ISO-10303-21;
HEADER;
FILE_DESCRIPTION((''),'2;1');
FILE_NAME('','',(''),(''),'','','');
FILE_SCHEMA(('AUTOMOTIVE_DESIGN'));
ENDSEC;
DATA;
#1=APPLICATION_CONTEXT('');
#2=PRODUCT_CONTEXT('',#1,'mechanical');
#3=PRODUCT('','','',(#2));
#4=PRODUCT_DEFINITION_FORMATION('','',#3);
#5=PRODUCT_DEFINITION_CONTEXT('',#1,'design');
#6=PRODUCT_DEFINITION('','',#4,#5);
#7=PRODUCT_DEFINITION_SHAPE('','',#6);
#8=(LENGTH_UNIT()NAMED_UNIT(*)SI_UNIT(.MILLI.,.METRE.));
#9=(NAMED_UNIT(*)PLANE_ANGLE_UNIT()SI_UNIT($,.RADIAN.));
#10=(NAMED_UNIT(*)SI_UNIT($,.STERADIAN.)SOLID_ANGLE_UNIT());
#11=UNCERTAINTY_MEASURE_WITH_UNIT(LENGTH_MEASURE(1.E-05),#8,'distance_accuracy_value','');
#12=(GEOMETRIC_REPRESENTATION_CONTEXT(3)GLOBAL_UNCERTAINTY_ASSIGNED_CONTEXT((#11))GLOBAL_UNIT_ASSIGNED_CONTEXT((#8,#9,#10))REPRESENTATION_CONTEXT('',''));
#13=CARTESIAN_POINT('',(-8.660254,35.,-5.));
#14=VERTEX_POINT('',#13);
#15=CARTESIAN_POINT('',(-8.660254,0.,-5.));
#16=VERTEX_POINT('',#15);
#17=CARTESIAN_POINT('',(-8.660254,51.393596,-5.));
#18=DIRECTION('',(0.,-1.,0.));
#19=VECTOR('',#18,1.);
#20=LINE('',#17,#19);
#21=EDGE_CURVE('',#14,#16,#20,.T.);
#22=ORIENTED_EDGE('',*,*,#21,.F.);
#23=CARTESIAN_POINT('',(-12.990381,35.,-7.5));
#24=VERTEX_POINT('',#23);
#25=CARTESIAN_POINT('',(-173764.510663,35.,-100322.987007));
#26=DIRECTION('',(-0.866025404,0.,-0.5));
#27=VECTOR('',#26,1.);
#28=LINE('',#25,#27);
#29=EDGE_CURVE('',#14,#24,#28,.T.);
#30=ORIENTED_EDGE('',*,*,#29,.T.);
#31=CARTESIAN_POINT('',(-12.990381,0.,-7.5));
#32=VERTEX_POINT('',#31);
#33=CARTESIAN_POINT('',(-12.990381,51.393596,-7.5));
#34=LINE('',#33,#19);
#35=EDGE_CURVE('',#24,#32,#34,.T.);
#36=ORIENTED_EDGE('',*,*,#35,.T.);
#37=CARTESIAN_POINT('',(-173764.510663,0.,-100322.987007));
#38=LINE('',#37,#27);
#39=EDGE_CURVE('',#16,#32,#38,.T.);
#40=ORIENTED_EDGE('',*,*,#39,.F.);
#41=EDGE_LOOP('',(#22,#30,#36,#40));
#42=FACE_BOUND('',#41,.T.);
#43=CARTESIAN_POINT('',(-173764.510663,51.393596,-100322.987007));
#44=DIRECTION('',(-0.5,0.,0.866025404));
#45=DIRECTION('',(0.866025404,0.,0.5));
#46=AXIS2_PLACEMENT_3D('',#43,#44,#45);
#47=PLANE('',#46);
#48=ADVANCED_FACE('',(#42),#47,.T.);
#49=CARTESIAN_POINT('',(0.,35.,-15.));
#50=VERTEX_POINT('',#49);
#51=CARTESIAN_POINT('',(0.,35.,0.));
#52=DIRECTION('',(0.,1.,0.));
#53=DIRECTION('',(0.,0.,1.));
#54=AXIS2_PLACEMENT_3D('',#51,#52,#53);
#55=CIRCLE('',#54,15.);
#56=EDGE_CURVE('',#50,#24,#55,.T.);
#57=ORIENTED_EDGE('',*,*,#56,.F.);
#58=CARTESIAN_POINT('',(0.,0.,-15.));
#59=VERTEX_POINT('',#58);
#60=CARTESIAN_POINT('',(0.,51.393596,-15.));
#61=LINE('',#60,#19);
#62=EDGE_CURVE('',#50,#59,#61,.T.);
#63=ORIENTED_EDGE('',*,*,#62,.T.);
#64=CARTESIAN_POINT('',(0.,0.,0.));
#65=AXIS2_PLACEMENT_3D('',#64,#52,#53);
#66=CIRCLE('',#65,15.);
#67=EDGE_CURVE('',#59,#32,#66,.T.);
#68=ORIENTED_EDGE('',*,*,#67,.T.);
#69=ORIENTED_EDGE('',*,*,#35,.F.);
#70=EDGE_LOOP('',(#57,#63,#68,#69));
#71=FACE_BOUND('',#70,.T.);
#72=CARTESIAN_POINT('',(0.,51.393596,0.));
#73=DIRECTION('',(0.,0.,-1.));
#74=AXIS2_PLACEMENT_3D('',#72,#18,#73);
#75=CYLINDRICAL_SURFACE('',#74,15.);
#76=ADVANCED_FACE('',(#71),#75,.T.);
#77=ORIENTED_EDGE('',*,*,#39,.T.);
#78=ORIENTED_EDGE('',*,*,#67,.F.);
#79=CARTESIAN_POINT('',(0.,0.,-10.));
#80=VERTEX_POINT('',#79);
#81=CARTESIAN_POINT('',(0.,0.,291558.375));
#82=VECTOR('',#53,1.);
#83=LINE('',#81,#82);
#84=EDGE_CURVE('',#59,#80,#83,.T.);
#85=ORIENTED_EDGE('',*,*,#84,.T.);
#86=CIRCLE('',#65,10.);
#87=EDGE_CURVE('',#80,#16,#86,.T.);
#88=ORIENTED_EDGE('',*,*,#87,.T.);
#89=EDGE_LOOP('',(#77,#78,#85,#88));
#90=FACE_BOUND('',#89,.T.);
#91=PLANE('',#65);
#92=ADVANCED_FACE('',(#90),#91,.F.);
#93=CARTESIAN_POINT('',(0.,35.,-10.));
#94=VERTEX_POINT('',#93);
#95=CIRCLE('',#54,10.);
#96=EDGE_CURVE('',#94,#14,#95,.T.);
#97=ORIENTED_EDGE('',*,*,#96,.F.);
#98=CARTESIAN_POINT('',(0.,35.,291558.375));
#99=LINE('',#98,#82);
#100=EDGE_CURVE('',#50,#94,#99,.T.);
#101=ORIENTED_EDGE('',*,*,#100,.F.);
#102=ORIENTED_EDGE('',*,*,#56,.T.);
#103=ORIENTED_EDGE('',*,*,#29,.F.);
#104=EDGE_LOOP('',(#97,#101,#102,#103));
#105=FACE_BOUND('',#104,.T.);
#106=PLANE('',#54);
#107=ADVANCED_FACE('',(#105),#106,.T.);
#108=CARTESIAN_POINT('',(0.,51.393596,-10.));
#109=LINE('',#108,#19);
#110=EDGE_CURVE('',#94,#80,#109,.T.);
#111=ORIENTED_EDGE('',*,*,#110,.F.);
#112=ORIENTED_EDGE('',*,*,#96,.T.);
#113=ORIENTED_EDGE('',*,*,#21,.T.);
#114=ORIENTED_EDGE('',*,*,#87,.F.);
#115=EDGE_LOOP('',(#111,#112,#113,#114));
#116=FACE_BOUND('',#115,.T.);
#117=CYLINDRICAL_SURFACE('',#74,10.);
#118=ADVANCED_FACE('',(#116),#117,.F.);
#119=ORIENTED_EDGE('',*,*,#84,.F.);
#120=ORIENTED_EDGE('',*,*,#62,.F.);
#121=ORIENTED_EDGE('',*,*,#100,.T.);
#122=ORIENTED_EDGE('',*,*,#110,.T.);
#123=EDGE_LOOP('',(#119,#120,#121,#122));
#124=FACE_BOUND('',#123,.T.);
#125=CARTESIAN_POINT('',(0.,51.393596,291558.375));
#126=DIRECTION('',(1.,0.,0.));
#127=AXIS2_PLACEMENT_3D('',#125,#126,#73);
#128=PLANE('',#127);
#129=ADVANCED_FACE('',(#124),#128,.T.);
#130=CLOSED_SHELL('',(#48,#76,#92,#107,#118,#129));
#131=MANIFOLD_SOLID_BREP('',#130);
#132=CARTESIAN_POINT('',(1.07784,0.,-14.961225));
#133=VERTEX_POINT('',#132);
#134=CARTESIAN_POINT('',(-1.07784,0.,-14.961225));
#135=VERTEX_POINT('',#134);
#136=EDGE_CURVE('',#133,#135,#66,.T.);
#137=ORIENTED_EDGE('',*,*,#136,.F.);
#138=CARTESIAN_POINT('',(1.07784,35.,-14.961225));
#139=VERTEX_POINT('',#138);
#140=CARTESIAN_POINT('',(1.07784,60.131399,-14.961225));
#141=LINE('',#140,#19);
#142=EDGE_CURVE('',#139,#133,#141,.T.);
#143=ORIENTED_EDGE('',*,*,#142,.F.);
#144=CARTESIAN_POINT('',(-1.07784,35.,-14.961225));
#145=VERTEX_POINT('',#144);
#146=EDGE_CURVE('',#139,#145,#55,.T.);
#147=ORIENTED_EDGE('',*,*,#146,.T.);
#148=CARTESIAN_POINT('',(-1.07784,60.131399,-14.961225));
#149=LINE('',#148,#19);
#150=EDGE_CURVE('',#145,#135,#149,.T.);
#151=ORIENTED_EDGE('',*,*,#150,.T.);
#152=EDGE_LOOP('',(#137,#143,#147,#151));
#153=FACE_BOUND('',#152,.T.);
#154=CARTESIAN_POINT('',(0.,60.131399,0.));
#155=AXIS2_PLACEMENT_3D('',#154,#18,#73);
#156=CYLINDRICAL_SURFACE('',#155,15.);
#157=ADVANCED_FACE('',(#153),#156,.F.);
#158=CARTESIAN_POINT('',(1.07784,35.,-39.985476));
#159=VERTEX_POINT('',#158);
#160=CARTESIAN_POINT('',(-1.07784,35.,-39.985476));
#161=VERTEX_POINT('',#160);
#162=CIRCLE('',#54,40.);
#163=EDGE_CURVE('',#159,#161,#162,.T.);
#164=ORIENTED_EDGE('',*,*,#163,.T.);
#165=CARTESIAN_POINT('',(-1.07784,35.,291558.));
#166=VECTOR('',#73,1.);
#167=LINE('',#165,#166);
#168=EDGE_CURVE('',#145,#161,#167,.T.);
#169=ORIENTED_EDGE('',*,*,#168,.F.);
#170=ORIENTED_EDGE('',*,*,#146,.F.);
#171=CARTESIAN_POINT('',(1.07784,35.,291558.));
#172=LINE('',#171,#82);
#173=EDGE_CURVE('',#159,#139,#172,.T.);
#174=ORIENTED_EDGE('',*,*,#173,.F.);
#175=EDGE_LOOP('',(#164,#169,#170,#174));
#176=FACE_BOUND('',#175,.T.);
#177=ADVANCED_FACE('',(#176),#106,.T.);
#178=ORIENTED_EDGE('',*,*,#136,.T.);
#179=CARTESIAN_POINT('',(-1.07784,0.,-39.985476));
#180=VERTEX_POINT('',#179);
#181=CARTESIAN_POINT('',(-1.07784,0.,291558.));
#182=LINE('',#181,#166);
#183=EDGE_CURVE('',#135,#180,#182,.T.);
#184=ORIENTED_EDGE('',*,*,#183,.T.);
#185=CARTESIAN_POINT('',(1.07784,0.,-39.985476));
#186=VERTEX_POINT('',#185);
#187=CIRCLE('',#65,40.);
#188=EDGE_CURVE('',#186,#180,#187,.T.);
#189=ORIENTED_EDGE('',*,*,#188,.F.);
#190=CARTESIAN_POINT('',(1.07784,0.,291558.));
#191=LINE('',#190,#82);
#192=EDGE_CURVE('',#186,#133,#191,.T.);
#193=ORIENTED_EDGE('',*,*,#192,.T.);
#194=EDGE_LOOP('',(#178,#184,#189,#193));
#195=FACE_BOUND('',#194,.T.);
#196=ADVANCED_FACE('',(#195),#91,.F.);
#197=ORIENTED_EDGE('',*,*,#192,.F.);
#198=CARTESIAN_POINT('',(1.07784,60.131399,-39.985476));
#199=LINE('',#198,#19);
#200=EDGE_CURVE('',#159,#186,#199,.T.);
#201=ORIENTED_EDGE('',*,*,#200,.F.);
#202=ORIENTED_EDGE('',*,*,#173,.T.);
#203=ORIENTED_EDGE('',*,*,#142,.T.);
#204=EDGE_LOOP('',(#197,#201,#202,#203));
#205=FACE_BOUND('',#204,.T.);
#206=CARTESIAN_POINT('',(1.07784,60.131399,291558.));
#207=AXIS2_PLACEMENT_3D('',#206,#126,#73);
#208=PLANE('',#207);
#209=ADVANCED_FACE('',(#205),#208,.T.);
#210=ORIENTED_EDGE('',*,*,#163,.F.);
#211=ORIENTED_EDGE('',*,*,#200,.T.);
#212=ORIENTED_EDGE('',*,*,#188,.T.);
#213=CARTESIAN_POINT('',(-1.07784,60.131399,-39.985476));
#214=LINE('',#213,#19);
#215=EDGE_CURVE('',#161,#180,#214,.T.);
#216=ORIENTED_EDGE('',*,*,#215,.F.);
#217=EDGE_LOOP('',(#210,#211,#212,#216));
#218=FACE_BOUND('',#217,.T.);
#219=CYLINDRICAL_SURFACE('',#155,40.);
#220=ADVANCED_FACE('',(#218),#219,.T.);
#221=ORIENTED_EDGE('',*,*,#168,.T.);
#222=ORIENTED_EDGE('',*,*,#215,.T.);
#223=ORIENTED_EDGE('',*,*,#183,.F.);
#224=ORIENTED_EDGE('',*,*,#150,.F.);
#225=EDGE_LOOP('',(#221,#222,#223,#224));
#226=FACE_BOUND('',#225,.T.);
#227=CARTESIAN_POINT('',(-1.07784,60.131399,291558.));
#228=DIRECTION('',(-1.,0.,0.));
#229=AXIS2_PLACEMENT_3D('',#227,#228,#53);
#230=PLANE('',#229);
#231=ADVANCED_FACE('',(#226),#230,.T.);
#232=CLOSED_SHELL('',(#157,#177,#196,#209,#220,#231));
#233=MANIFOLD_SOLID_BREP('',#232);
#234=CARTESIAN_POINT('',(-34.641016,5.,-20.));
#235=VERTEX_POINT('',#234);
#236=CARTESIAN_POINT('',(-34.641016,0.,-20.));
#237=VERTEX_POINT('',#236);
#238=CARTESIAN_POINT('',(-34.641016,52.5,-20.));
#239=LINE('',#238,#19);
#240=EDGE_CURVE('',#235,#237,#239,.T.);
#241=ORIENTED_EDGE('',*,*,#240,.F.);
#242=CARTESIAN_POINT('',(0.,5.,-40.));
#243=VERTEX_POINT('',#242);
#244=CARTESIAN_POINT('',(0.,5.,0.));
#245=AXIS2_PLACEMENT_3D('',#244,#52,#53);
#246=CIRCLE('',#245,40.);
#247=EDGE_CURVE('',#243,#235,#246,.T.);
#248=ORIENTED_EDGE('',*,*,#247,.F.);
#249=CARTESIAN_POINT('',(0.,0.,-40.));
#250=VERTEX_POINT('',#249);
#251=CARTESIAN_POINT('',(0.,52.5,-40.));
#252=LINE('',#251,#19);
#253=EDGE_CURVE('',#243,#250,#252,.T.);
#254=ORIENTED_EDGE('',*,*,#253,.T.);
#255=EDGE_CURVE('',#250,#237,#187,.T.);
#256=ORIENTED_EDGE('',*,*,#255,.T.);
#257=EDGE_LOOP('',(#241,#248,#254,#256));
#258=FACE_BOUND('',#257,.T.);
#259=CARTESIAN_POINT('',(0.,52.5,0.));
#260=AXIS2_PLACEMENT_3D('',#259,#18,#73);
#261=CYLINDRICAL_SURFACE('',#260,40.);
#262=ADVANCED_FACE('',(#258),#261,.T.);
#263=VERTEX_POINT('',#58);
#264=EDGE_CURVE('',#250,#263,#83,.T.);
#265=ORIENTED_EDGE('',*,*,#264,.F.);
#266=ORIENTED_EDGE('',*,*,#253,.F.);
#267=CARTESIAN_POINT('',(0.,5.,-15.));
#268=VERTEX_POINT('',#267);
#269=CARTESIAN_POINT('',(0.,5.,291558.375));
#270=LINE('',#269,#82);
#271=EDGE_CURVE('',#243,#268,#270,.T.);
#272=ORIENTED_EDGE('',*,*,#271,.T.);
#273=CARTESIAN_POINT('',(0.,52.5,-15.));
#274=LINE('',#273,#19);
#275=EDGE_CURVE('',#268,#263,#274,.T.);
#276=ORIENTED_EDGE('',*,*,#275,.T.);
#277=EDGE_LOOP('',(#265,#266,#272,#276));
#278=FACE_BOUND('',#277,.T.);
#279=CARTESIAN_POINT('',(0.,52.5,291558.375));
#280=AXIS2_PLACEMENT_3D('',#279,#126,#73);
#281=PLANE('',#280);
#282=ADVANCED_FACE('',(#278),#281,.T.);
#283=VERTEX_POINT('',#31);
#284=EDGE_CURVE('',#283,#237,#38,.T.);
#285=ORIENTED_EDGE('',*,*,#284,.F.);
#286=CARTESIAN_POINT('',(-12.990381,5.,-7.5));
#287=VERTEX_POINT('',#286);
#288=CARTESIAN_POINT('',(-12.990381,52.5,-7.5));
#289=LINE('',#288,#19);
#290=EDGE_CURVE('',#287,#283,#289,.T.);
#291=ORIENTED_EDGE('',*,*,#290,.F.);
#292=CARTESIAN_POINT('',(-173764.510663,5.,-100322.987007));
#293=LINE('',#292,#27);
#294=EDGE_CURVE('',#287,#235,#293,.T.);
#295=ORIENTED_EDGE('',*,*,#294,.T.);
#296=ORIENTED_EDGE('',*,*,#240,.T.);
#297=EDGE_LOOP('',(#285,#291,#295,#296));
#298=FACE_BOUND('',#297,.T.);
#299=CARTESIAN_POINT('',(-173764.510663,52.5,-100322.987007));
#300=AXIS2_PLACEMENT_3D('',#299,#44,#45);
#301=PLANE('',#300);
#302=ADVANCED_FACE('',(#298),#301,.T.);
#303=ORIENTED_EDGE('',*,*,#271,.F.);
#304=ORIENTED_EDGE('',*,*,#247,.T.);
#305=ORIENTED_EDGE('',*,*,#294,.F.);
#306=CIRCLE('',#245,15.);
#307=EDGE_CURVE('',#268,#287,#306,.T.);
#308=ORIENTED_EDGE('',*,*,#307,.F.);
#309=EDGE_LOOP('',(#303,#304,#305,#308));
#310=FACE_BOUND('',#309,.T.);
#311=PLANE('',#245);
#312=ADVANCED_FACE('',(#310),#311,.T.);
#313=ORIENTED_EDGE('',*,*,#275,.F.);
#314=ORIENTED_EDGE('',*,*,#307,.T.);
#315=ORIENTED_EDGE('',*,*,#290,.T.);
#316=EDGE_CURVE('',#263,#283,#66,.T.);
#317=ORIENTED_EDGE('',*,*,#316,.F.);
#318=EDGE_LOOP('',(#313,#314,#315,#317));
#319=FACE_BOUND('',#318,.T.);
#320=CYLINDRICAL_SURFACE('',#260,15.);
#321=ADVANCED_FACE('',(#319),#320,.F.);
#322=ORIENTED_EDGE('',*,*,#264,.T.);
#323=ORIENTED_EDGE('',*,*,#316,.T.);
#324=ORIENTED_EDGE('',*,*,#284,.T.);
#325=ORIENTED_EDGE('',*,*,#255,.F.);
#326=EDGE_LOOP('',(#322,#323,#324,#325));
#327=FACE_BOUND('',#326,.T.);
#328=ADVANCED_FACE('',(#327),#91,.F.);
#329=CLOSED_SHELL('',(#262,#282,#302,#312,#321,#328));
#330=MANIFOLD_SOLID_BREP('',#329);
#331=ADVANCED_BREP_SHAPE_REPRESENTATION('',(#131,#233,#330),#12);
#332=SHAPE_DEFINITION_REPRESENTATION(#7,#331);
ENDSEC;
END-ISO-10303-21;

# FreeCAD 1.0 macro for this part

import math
import FreeCAD as App
import Part
import Sketcher
from FreeCAD import Vector
Q = App.Units.Quantity

doc = App.newDocument("Part")
body = doc.addObject("PartDesign::Body", "Body")

sketch1 = body.newObject("Sketcher::SketchObject", "Sketch")
sketch1.AttachmentSupport = (doc.getObject("XZ_Plane"), [""])
sketch1.MapMode = "FlatFace"
sketch1.addGeometry(Part.LineSegment(Vector(0, -15, 0), Vector(0, -40, 0)), False)
sketch1.addGeometry(Part.ArcOfCircle(Part.Circle(Vector(0, 0, 0), Vector(0, 0, 1), 40), math.radians(-150), math.radians(-90)), False)
sketch1.addGeometry(Part.LineSegment(Vector(-35, -20, 0), Vector(-13, -8, 0)), False)
sketch1.addGeometry(Part.ArcOfCircle(Part.Circle(Vector(0, 0, 0), Vector(0, 0, 1), 15), math.radians(-150), math.radians(-90)), False)
sketch1.addConstraint(Sketcher.Constraint("Coincident", 0, 2, 1, 2))
sketch1.addConstraint(Sketcher.Constraint("Coincident", 1, 1, 2, 1))
sketch1.addConstraint(Sketcher.Constraint("Coincident", 2, 2, 3, 1))
sketch1.addConstraint(Sketcher.Constraint("Coincident", 3, 2, 0, 1))
sketch1.addConstraint(Sketcher.Constraint("Vertical", 0))
sketch1.addConstraint(Sketcher.Constraint("Coincident", 1, 3, -1, 1))
sketch1.addConstraint(Sketcher.Constraint("Coincident", 3, 3, -1, 1))
sketch1.addConstraint(Sketcher.Constraint("PointOnObject", 0, 2, -2))
sketch1.addConstraint(Sketcher.Constraint("Radius", 1, 40.0))
sketch1.addConstraint(Sketcher.Constraint("Radius", 3, 15.0))
sketch1.addConstraint(Sketcher.Constraint("Angle", 2, Q("30 deg")))
sketch1.addConstraint(Sketcher.Constraint("DistanceY", 1, 1, -1, 1, 20.0))
pad1 = body.newObject("PartDesign::Pad", "Pad")
pad1.Profile = sketch1
pad1.Length = 5
pad1.Reversed = True
body2 = doc.addObject("PartDesign::Body", "Body001")

sketch2 = body2.newObject("Sketcher::SketchObject", "Sketch001")
sketch2.AttachmentSupport = (doc.getObject("XZ_Plane001"), [""])
sketch2.MapMode = "FlatFace"
sketch2.addGeometry(Part.LineSegment(Vector(0, -10, 0), Vector(0, -15, 0)), False)
sketch2.addGeometry(Part.ArcOfCircle(Part.Circle(Vector(0, 0, 0), Vector(0, 0, 1), 15), math.radians(-150), math.radians(-90)), False)
sketch2.addGeometry(Part.LineSegment(Vector(-13, -8, 0), Vector(-9, -5, 0)), False)
sketch2.addGeometry(Part.ArcOfCircle(Part.Circle(Vector(0, 0, 0), Vector(0, 0, 1), 10), math.radians(-150), math.radians(-90)), False)
sketch2.addConstraint(Sketcher.Constraint("Coincident", 0, 2, 1, 2))
sketch2.addConstraint(Sketcher.Constraint("Coincident", 1, 1, 2, 1))
sketch2.addConstraint(Sketcher.Constraint("Coincident", 2, 2, 3, 1))
sketch2.addConstraint(Sketcher.Constraint("Coincident", 3, 2, 0, 1))
sketch2.addConstraint(Sketcher.Constraint("Vertical", 0))
sketch2.addConstraint(Sketcher.Constraint("Coincident", 1, 3, -1, 1))
sketch2.addConstraint(Sketcher.Constraint("Coincident", 3, 3, -1, 1))
sketch2.addConstraint(Sketcher.Constraint("PointOnObject", 0, 2, -2))
sketch2.addConstraint(Sketcher.Constraint("Radius", 1, 15.0))
sketch2.addConstraint(Sketcher.Constraint("Radius", 3, 10.0))
sketch2.addConstraint(Sketcher.Constraint("Angle", 2, Q("30 deg")))
sketch2.addConstraint(Sketcher.Constraint("DistanceY", 2, 2, -1, 1, 5.0))
pad2 = body2.newObject("PartDesign::Pad", "Pad001")
pad2.Profile = sketch2
pad2.Length = 35
pad2.Reversed = True
body3 = doc.addObject("PartDesign::Body", "Body002")

sketch3 = body3.newObject("Sketcher::SketchObject", "Sketch002")
sketch3.AttachmentSupport = (doc.getObject("XZ_Plane002"), [""])
sketch3.MapMode = "FlatFace"
sketch3.addGeometry(Part.LineSegment(Vector(1.1, -15, 0), Vector(1.1, -40, 0)), False)
sketch3.addGeometry(Part.ArcOfCircle(Part.Circle(Vector(0, 0, 0), Vector(0, 0, 1), 40), math.radians(-91.54), math.radians(-88.46)), False)
sketch3.addGeometry(Part.LineSegment(Vector(-1.1, -40, 0), Vector(-1.1, -15, 0)), False)
sketch3.addGeometry(Part.ArcOfCircle(Part.Circle(Vector(0, 0, 0), Vector(0, 0, 1), 15), math.radians(-94.12), math.radians(-85.88)), False)
sketch3.addConstraint(Sketcher.Constraint("Coincident", 0, 2, 1, 2))
sketch3.addConstraint(Sketcher.Constraint("Coincident", 1, 1, 2, 1))
sketch3.addConstraint(Sketcher.Constraint("Coincident", 2, 2, 3, 1))
sketch3.addConstraint(Sketcher.Constraint("Coincident", 3, 2, 0, 1))
sketch3.addConstraint(Sketcher.Constraint("Vertical", 0))
sketch3.addConstraint(Sketcher.Constraint("Vertical", 2))
sketch3.addConstraint(Sketcher.Constraint("Coincident", 1, 3, -1, 1))
sketch3.addConstraint(Sketcher.Constraint("Coincident", 3, 3, -1, 1))
sketch3.addConstraint(Sketcher.Constraint("Horizontal", 0, 2, 1, 1))
sketch3.addConstraint(Sketcher.Constraint("Radius", 1, 39.999999))
sketch3.addConstraint(Sketcher.Constraint("Radius", 3, 15.0))
sketch3.addConstraint(Sketcher.Constraint("DistanceY", 0, 2, 0, 1, 25.02425))
pad3 = body3.newObject("PartDesign::Pad", "Pad002")
pad3.Profile = sketch3
pad3.Length = 35
pad3.Reversed = True

doc.recompute()
